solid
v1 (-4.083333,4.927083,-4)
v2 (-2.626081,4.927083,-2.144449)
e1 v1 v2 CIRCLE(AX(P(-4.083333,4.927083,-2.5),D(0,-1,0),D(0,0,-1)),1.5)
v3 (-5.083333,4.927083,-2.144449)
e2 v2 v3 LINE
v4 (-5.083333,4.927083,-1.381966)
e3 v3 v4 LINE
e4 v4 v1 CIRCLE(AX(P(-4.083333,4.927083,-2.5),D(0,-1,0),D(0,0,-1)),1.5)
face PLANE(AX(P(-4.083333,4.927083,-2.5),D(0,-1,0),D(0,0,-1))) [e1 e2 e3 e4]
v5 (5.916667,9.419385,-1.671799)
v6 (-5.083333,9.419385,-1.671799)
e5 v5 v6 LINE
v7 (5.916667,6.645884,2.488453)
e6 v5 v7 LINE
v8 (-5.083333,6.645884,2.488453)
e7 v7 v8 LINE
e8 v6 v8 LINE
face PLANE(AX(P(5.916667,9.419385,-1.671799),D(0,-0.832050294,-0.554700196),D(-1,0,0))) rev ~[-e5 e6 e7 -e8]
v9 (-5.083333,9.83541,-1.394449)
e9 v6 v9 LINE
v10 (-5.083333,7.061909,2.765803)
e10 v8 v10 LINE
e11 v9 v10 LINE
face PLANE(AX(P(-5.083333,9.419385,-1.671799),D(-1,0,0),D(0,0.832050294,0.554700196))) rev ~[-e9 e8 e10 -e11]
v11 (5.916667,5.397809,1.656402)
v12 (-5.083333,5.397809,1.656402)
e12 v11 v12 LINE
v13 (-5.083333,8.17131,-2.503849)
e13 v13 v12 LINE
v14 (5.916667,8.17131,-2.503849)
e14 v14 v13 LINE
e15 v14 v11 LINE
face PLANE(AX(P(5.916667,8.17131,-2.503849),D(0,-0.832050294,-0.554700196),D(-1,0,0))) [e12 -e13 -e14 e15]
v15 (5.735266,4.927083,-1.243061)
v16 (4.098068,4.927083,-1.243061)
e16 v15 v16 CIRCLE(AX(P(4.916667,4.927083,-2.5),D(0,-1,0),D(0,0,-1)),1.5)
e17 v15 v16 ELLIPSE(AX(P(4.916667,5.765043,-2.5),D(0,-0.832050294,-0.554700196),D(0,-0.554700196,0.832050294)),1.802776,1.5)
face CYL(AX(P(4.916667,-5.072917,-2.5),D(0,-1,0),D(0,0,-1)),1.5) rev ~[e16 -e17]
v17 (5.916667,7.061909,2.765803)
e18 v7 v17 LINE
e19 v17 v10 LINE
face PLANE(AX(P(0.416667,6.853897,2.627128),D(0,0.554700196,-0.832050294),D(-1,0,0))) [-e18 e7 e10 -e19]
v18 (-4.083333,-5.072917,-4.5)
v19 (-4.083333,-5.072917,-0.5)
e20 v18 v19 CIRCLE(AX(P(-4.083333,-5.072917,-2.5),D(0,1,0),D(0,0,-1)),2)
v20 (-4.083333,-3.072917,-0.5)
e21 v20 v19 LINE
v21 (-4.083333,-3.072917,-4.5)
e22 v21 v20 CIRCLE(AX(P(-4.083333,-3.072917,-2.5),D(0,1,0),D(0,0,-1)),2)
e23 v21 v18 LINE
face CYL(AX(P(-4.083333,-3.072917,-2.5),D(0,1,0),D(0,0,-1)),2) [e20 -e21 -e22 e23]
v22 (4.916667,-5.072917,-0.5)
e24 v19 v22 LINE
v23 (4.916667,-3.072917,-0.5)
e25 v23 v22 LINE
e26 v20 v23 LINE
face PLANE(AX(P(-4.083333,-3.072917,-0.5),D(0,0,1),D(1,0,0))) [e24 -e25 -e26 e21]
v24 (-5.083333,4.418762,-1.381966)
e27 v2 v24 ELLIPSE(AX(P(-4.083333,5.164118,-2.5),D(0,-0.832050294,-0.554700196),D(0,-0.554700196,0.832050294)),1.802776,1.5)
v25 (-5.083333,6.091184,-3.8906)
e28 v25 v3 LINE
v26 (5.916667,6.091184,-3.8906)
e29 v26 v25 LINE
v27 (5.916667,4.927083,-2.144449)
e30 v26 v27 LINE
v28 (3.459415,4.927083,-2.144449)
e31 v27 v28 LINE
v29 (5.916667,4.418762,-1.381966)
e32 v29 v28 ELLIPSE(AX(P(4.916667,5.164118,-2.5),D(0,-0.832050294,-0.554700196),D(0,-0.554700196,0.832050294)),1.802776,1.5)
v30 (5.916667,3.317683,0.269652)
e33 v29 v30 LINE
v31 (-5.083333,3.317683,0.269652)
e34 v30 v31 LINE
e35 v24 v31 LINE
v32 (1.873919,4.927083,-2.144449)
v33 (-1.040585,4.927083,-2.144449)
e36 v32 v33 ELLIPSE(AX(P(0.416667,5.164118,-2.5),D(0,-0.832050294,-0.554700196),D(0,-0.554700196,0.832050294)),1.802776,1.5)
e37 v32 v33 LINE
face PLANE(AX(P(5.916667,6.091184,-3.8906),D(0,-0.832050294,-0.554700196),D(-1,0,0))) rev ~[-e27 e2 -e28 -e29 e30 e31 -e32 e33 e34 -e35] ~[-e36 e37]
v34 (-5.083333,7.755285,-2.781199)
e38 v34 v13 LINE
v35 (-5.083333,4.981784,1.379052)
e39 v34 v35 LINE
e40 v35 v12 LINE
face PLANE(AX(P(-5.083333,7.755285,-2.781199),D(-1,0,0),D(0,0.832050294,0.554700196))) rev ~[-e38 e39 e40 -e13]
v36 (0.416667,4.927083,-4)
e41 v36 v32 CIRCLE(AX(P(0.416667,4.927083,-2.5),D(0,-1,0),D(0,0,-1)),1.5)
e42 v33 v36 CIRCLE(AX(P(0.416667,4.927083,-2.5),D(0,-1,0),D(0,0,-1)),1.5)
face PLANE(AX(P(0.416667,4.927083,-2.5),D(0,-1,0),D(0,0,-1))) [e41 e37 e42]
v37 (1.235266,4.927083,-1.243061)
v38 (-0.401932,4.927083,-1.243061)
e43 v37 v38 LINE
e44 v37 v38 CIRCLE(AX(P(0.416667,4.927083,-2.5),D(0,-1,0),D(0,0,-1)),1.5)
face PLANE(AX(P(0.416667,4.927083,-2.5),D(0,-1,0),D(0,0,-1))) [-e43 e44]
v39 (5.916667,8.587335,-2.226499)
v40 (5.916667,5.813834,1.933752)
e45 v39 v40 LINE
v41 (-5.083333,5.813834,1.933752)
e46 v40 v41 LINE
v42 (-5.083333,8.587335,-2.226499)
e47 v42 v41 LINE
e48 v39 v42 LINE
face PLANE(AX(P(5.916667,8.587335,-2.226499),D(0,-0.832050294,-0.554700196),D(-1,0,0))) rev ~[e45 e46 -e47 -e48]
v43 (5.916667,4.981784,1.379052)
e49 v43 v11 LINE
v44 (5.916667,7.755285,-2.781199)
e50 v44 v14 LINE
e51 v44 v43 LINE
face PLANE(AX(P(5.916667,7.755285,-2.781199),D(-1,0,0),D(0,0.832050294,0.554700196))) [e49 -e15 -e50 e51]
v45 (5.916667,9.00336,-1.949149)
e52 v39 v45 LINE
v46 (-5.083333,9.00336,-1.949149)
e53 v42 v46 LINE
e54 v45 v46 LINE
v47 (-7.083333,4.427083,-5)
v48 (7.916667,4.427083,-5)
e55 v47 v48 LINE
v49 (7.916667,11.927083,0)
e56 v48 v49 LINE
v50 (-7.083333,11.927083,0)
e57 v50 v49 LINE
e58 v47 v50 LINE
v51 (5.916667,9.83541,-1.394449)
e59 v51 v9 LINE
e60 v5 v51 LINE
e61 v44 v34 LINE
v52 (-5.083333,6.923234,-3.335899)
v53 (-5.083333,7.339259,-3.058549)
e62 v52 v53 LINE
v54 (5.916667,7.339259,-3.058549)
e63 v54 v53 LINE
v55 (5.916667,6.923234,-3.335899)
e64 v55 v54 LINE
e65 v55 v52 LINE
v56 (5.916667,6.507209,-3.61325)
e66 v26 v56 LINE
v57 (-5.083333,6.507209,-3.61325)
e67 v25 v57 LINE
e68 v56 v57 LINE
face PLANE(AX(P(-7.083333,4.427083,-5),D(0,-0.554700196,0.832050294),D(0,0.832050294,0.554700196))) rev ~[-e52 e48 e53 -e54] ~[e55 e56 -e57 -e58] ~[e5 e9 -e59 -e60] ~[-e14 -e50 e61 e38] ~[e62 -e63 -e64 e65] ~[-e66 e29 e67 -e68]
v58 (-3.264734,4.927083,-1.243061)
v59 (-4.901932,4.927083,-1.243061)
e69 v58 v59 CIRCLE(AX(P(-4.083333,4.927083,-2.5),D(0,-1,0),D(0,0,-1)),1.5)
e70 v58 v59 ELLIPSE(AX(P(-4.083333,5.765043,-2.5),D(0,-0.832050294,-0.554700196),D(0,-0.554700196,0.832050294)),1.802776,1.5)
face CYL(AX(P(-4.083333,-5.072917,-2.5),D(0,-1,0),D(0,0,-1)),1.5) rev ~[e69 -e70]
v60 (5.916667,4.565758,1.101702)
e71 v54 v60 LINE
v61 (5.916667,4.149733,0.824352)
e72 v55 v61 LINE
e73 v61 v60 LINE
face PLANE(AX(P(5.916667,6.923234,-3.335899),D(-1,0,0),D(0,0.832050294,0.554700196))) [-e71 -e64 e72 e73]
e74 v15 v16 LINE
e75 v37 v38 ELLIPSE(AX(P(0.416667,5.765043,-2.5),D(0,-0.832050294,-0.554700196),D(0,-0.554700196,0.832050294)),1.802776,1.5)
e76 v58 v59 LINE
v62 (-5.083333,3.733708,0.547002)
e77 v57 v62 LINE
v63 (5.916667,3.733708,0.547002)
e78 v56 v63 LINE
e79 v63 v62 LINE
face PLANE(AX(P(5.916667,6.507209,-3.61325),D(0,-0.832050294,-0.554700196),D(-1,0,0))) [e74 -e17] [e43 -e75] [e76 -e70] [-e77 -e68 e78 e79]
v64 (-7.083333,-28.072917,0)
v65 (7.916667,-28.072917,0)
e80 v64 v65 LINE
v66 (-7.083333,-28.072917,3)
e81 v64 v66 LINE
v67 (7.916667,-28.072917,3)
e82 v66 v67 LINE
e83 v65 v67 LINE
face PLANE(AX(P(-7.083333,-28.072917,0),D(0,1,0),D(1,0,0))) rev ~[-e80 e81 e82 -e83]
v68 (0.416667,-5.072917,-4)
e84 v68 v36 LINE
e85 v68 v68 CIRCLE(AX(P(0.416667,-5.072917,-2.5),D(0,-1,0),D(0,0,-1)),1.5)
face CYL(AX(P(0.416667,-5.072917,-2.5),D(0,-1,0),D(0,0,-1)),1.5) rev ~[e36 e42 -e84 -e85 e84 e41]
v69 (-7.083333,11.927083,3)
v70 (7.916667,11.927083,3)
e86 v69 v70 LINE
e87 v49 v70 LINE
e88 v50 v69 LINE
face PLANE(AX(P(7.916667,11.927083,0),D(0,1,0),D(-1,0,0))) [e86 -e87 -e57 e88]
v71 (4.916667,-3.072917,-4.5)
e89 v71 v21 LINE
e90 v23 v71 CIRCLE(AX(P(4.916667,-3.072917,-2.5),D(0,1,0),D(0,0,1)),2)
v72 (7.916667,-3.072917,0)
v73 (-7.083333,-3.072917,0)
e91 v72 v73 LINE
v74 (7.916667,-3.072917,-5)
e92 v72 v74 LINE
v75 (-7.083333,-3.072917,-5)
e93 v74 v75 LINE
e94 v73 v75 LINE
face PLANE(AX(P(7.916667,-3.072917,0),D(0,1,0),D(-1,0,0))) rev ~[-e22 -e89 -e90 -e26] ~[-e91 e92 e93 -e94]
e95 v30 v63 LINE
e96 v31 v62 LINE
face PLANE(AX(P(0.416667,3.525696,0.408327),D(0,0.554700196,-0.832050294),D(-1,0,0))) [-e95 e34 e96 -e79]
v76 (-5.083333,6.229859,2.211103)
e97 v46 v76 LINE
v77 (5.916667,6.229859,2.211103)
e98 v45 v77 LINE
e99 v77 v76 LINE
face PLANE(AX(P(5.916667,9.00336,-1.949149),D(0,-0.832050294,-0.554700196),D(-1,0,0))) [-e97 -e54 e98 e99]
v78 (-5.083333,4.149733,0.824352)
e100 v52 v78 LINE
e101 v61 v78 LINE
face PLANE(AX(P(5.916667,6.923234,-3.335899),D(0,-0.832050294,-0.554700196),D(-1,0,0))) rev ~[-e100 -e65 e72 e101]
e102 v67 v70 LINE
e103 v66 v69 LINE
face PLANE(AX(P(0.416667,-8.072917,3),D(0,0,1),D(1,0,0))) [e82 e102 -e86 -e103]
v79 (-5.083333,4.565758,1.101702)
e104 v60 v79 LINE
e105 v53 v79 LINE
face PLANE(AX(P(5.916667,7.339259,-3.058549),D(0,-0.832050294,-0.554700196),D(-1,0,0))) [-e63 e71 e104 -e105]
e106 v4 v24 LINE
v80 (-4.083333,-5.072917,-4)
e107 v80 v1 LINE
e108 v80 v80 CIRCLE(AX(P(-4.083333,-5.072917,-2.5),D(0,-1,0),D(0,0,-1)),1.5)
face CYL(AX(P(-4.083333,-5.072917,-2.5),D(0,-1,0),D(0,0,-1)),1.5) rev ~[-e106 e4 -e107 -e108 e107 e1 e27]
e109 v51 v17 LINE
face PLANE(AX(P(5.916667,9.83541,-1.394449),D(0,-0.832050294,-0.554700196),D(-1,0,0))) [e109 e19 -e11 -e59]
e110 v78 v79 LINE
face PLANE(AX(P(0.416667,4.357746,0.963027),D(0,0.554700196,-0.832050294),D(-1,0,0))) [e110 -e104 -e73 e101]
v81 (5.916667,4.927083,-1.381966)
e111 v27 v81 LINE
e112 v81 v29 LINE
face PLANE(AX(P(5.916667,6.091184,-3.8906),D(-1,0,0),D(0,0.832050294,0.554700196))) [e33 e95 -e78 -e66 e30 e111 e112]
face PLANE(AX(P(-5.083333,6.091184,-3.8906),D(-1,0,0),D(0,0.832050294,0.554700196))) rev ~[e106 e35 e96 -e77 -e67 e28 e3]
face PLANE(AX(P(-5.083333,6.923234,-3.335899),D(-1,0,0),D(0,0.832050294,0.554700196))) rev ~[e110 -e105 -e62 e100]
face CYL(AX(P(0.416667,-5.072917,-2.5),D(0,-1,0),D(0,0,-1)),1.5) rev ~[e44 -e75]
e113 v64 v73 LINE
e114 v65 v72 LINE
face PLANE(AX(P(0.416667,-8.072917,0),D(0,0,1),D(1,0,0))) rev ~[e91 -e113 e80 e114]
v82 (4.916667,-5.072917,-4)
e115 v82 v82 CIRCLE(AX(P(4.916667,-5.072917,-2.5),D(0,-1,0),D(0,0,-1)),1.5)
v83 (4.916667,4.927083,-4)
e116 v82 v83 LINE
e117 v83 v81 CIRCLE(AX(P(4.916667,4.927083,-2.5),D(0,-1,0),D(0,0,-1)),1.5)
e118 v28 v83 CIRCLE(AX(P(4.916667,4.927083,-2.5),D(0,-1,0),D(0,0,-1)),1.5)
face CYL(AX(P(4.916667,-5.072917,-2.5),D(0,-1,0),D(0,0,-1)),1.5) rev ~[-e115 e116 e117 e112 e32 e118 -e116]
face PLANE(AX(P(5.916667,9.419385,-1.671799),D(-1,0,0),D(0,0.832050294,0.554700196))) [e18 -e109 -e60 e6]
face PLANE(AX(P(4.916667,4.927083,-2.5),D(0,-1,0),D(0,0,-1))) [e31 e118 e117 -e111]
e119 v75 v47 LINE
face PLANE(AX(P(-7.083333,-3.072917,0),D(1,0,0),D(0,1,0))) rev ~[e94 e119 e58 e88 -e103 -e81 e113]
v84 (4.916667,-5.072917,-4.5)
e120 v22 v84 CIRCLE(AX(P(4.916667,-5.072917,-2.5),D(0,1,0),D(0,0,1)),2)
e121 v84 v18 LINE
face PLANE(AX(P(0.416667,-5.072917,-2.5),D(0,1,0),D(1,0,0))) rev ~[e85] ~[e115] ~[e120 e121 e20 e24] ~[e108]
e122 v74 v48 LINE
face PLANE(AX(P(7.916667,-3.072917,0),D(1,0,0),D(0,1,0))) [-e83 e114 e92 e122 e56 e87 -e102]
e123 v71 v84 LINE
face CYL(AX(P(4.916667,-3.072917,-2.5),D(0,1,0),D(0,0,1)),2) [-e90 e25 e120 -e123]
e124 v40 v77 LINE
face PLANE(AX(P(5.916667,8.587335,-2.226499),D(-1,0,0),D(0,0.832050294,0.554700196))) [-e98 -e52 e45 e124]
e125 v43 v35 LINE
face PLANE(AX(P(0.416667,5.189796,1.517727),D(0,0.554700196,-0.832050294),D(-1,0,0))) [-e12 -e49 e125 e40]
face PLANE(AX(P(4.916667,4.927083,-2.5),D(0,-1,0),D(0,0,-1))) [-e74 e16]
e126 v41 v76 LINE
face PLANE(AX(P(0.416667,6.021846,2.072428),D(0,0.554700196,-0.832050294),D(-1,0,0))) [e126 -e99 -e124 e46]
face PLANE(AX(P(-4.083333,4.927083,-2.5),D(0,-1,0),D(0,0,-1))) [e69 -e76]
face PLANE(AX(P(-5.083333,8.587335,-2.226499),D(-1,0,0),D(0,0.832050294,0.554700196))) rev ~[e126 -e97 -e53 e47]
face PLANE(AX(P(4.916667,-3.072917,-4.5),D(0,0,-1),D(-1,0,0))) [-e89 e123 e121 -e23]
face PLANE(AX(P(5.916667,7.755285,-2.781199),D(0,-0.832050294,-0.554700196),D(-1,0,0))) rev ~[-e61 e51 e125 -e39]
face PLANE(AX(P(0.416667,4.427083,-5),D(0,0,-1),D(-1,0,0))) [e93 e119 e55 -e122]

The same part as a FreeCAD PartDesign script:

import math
import FreeCAD as App
import Part
import Sketcher

V = App.Vector

doc = App.newDocument("Part")
body = doc.addObject("PartDesign::Body", "Body")

# Sketch on XY plane
sketch1 = body.newObject("Sketcher::SketchObject", "Sketch")
sketch1.AttachmentSupport = (doc.getObject("XY_Plane"), [""])
sketch1.MapMode = "FlatFace"
sketch1.addGeometry([
    Part.LineSegment(V(-7, 12, 0), V(-7, -28, 0)),
    Part.LineSegment(V(-7, -28, 0), V(8, -28, 0)),
    Part.LineSegment(V(8, -28, 0), V(8, 12, 0)),
    Part.LineSegment(V(8, 12, 0), V(-7, 12, 0)),
], False)
sketch1.addConstraint([
    Sketcher.Constraint("Coincident", 0, 2, 1, 1),
    Sketcher.Constraint("Coincident", 1, 2, 2, 1),
    Sketcher.Constraint("Coincident", 2, 2, 3, 1),
    Sketcher.Constraint("Coincident", 3, 2, 0, 1),
    Sketcher.Constraint("Vertical", 0),
    Sketcher.Constraint("Horizontal", 1),
    Sketcher.Constraint("Vertical", 2),
    Sketcher.Constraint("Horizontal", 3),
    Sketcher.Constraint("DistanceX", 1, 1, 1, 2, 15.0),
    Sketcher.Constraint("DistanceY", 0, 2, 0, 1, 40.0),
    Sketcher.Constraint("DistanceX", 0, 2, -1, 1, 7.083333),
    Sketcher.Constraint("DistanceY", 0, 2, -1, 1, 28.072917),
])
pad1 = body.newObject("PartDesign::Pad", "Pad")
pad1.Profile = sketch1
pad1.Length = 3

# Sketch on XY plane
sketch2 = body.newObject("Sketcher::SketchObject", "Sketch001")
sketch2.AttachmentSupport = (doc.getObject("XY_Plane"), [""])
sketch2.MapMode = "FlatFace"
sketch2.addGeometry([
    Part.LineSegment(V(8, 12, 0), V(8, -3, 0)),
    Part.LineSegment(V(8, -3, 0), V(-7, -3, 0)),
    Part.LineSegment(V(-7, -3, 0), V(-7, 12, 0)),
    Part.LineSegment(V(-7, 12, 0), V(8, 12, 0)),
], False)
sketch2.addConstraint([
    Sketcher.Constraint("Coincident", 0, 2, 1, 1),
    Sketcher.Constraint("Coincident", 1, 2, 2, 1),
    Sketcher.Constraint("Coincident", 2, 2, 3, 1),
    Sketcher.Constraint("Coincident", 3, 2, 0, 1),
    Sketcher.Constraint("Vertical", 0),
    Sketcher.Constraint("Horizontal", 1),
    Sketcher.Constraint("Vertical", 2),
    Sketcher.Constraint("Horizontal", 3),
    Sketcher.Constraint("Equal", 3, 0),
    Sketcher.Constraint("DistanceX", 1, 2, 1, 1, 15.0),
    Sketcher.Constraint("DistanceX", -1, 1, 0, 2, 7.916667),
    Sketcher.Constraint("DistanceY", 0, 2, -1, 1, 3.072917),
])
pad2 = body.newObject("PartDesign::Pad", "Pad001")
pad2.Profile = sketch2
pad2.Length = 5
pad2.Reversed = True

# Sketch on YZ plane
sketch3 = body.newObject("Sketcher::SketchObject", "Sketch002")
sketch3.AttachmentSupport = (doc.getObject("YZ_Plane"), [""])
sketch3.MapMode = "FlatFace"
sketch3.AttachmentOffset = App.Placement(V(0, 0, -7.083333), App.Rotation())
sketch3.addGeometry([
    Part.LineSegment(V(12, -5, 0), V(4, -5, 0)),
    Part.LineSegment(V(4, -5, 0), V(12, 0, 0)),
    Part.LineSegment(V(12, 0, 0), V(12, -5, 0)),
], False)
sketch3.addConstraint([
    Sketcher.Constraint("Coincident", 0, 2, 1, 1),
    Sketcher.Constraint("Coincident", 1, 2, 2, 1),
    Sketcher.Constraint("Coincident", 2, 2, 0, 1),
    Sketcher.Constraint("Horizontal", 0),
    Sketcher.Constraint("Vertical", 2),
    Sketcher.Constraint("PointOnObject", 1, 2, -1),
    Sketcher.Constraint("DistanceY", 2, 2, 2, 1, 5.0),
    Sketcher.Constraint("DistanceX", 0, 2, 0, 1, 7.5),
    Sketcher.Constraint("DistanceX", -1, 1, 0, 2, 4.427083),
])
pocket1 = body.newObject("PartDesign::Pocket", "Pocket")
pocket1.Profile = sketch3
pocket1.Length = 15
pocket1.Reversed = True

# Sketch on an angled plane
sketch4 = body.newObject("Sketcher::SketchObject", "Sketch003")
sketch4.Placement = App.Placement(V(0, 3.669872, -5.504808), App.Rotation(V(-1, 0, 0), V(0, 0.832050294, 0.554700196), V(0, 0.554700196, -0.832050294), "ZXY"))
sketch4.addGeometry([
    Part.LineSegment(V(-5.92, 3.41, 0), V(-5.92, 2.91, 0)),  # 0
    Part.LineSegment(V(-5.92, 2.91, 0), V(5.08, 2.91, 0)),  # 1
    Part.LineSegment(V(5.08, 2.91, 0), V(5.08, 3.41, 0)),  # 2
    Part.LineSegment(V(5.08, 3.41, 0), V(-5.92, 3.41, 0)),  # 3
    Part.LineSegment(V(-5.92, 4.41, 0), V(-5.92, 3.91, 0)),  # 4
    Part.LineSegment(V(-5.92, 3.91, 0), V(5.08, 3.91, 0)),  # 5
    Part.LineSegment(V(5.08, 3.91, 0), V(5.08, 4.41, 0)),  # 6
    Part.LineSegment(V(5.08, 4.41, 0), V(-5.92, 4.41, 0)),  # 7
    Part.LineSegment(V(-5.92, 5.41, 0), V(-5.92, 4.91, 0)),  # 8
    Part.LineSegment(V(-5.92, 4.91, 0), V(5.08, 4.91, 0)),  # 9
    Part.LineSegment(V(5.08, 4.91, 0), V(5.08, 5.41, 0)),  # 10
    Part.LineSegment(V(5.08, 5.41, 0), V(-5.92, 5.41, 0)),  # 11
    Part.LineSegment(V(-5.92, 6.41, 0), V(-5.92, 5.91, 0)),  # 12
    Part.LineSegment(V(-5.92, 5.91, 0), V(5.08, 5.91, 0)),  # 13
    Part.LineSegment(V(5.08, 5.91, 0), V(5.08, 6.41, 0)),  # 14
    Part.LineSegment(V(5.08, 6.41, 0), V(-5.92, 6.41, 0)),  # 15
    Part.LineSegment(V(-5.92, 7.41, 0), V(-5.92, 6.91, 0)),  # 16
    Part.LineSegment(V(-5.92, 6.91, 0), V(5.08, 6.91, 0)),  # 17
    Part.LineSegment(V(5.08, 6.91, 0), V(5.08, 7.41, 0)),  # 18
    Part.LineSegment(V(5.08, 7.41, 0), V(-5.92, 7.41, 0)),  # 19
], False)
sketch4.addConstraint([
    Sketcher.Constraint("Coincident", 0, 2, 1, 1),
    Sketcher.Constraint("Coincident", 1, 2, 2, 1),
    Sketcher.Constraint("Coincident", 2, 2, 3, 1),
    Sketcher.Constraint("Coincident", 3, 2, 0, 1),
    Sketcher.Constraint("Coincident", 4, 2, 5, 1),
    Sketcher.Constraint("Coincident", 5, 2, 6, 1),
    Sketcher.Constraint("Coincident", 6, 2, 7, 1),
    Sketcher.Constraint("Coincident", 7, 2, 4, 1),
    Sketcher.Constraint("Coincident", 8, 2, 9, 1),
    Sketcher.Constraint("Coincident", 9, 2, 10, 1),
    Sketcher.Constraint("Coincident", 10, 2, 11, 1),
    Sketcher.Constraint("Coincident", 11, 2, 8, 1),
    Sketcher.Constraint("Coincident", 12, 2, 13, 1),
    Sketcher.Constraint("Coincident", 13, 2, 14, 1),
    Sketcher.Constraint("Coincident", 14, 2, 15, 1),
    Sketcher.Constraint("Coincident", 15, 2, 12, 1),
    Sketcher.Constraint("Coincident", 16, 2, 17, 1),
    Sketcher.Constraint("Coincident", 17, 2, 18, 1),
    Sketcher.Constraint("Coincident", 18, 2, 19, 1),
    Sketcher.Constraint("Coincident", 19, 2, 16, 1),
    Sketcher.Constraint("Vertical", 0),
    Sketcher.Constraint("Horizontal", 1),
    Sketcher.Constraint("Vertical", 2),
    Sketcher.Constraint("Horizontal", 3),
    Sketcher.Constraint("Vertical", 4),
    Sketcher.Constraint("Horizontal", 5),
    Sketcher.Constraint("Vertical", 6),
    Sketcher.Constraint("Horizontal", 7),
    Sketcher.Constraint("Vertical", 8),
    Sketcher.Constraint("Horizontal", 9),
    Sketcher.Constraint("Vertical", 10),
    Sketcher.Constraint("Horizontal", 11),
    Sketcher.Constraint("Vertical", 12),
    Sketcher.Constraint("Horizontal", 13),
    Sketcher.Constraint("Vertical", 14),
    Sketcher.Constraint("Horizontal", 15),
    Sketcher.Constraint("Vertical", 16),
    Sketcher.Constraint("Horizontal", 17),
    Sketcher.Constraint("Vertical", 18),
    Sketcher.Constraint("Horizontal", 19),
    Sketcher.Constraint("Vertical", 3, 2, 4, 2),
    Sketcher.Constraint("Vertical", 2, 2, 5, 2),
    Sketcher.Constraint("Vertical", 7, 2, 8, 2),
    Sketcher.Constraint("Vertical", 6, 2, 9, 2),
    Sketcher.Constraint("Vertical", 11, 2, 12, 2),
    Sketcher.Constraint("Vertical", 10, 2, 13, 2),
    Sketcher.Constraint("Vertical", 15, 2, 16, 2),
    Sketcher.Constraint("Vertical", 14, 2, 17, 2),
    Sketcher.Constraint("Equal", 2, 4),
    Sketcher.Constraint("Equal", 6, 8),
    Sketcher.Constraint("Equal", 10, 12),
    Sketcher.Constraint("Equal", 14, 16),
    Sketcher.Constraint("DistanceX", 1, 1, 1, 2, 11.0),
    Sketcher.Constraint("DistanceY", 0, 2, 0, 1, 0.5),
    Sketcher.Constraint("DistanceY", 0, 2, 4, 2, 1.0),
    Sketcher.Constraint("DistanceY", 4, 2, 8, 2, 1.0),
    Sketcher.Constraint("DistanceY", 8, 2, 12, 2, 1.0),
    Sketcher.Constraint("DistanceY", 12, 2, 16, 2, 1.0),
    Sketcher.Constraint("DistanceX", 0, 2, -1, 1, 5.916667),
    Sketcher.Constraint("DistanceY", -1, 1, 0, 2, 2.910055),
])
pocket2 = body.newObject("PartDesign::Pocket", "Pocket001")
pocket2.Profile = sketch4
pocket2.Length = 5

# Sketch on XZ plane
sketch5 = body.newObject("Sketcher::SketchObject", "Sketch004")
sketch5.AttachmentSupport = (doc.getObject("XZ_Plane"), [""])
sketch5.MapMode = "FlatFace"
sketch5.AttachmentOffset = App.Placement(V(0, 0, 3.072917), App.Rotation())
sketch5.addGeometry([
    Part.LineSegment(V(-4.1, -4.5, 0), V(4.9, -4.5, 0)),
    Part.ArcOfCircle(Part.Circle(V(4.9, -2.5, 0), V(0, 0, 1), 2), math.radians(-90), math.radians(90)),
    Part.LineSegment(V(4.9, -0.5, 0), V(-4.1, -0.5, 0)),
    Part.ArcOfCircle(Part.Circle(V(-4.1, -2.5, 0), V(0, 0, 1), 2), math.radians(90), math.radians(270)),
], False)
sketch5.addConstraint([
    Sketcher.Constraint("Tangent", 0, 2, 1, 1),
    Sketcher.Constraint("Tangent", 1, 2, 2, 1),
    Sketcher.Constraint("Tangent", 2, 2, 3, 1),
    Sketcher.Constraint("Tangent", 3, 2, 0, 1),
    Sketcher.Constraint("Horizontal", 0),
    Sketcher.Constraint("Horizontal", 2),
    Sketcher.Constraint("Radius", 1, 2.0),
    Sketcher.Constraint("DistanceX", 0, 1, 0, 2, 9.0),
    Sketcher.Constraint("DistanceY", 1, 3, -1, 1, 2.5),
    Sketcher.Constraint("DistanceX", -1, 1, 1, 3, 4.916667),
])
pad3 = body.newObject("PartDesign::Pad", "Pad002")
pad3.Profile = sketch5
pad3.Length = 2

# Sketch on XZ plane
sketch6 = body.newObject("Sketcher::SketchObject", "Sketch005")
sketch6.AttachmentSupport = (doc.getObject("XZ_Plane"), [""])
sketch6.MapMode = "FlatFace"
sketch6.AttachmentOffset = App.Placement(V(0, 0, 5.072917), App.Rotation())
sketch6.addGeometry([
    Part.Circle(V(-4.1, -2.5, 0), V(0, 0, 1), 1.5),
    Part.Circle(V(4.9, -2.5, 0), V(0, 0, 1), 1.5),
    Part.Circle(V(0.4, -2.5, 0), V(0, 0, 1), 1.5),
], False)
sketch6.addConstraint([
    Sketcher.Constraint("Equal", 0, 1),
    Sketcher.Constraint("Equal", 1, 2),
    Sketcher.Constraint("Horizontal", 0, 3, 1, 3),
    Sketcher.Constraint("Horizontal", 1, 3, 2, 3),
    Sketcher.Constraint("Diameter", 0, 3.0),
    Sketcher.Constraint("DistanceX", 0, 3, 1, 3, 9.0),
    Sketcher.Constraint("DistanceY", 0, 3, -1, 1, 2.5),
    Sketcher.Constraint("DistanceX", 0, 3, 2, 3, 4.5),
    Sketcher.Constraint("DistanceX", 0, 3, -1, 1, 4.083333),
])
pocket3 = body.newObject("PartDesign::Pocket", "Pocket002")
pocket3.Profile = sketch6
pocket3.Length = 10

doc.recompute()
